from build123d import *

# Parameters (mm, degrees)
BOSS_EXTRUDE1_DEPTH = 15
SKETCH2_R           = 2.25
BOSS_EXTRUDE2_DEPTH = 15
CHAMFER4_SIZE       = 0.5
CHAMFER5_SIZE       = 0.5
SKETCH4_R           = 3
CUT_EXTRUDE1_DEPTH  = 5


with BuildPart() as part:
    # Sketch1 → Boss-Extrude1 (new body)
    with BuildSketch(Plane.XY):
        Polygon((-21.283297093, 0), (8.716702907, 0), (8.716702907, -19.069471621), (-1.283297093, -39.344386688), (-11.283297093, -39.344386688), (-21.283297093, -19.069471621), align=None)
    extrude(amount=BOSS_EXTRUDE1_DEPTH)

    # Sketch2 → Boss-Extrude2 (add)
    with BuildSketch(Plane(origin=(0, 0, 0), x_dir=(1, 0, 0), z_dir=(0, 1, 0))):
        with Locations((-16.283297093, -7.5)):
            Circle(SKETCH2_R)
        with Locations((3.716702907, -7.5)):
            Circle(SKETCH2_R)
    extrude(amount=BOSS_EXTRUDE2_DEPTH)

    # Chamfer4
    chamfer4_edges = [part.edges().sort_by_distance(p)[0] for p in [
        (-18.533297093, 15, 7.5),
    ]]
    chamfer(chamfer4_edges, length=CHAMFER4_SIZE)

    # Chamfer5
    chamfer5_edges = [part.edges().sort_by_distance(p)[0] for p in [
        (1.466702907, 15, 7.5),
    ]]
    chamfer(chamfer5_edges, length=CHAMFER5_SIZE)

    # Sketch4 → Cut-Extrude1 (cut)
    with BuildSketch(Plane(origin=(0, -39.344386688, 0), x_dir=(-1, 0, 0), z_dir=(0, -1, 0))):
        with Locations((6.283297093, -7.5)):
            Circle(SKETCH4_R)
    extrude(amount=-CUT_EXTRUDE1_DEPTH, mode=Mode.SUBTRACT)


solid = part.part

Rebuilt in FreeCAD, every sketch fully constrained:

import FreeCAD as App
import Part
import Sketcher
from FreeCAD import Vector
Q = App.Units.Quantity


def edges_at(feature, points):
    """Names of the edges that pass closest to the given points."""
    edges = feature.Shape.Edges
    near = lambda p: min(range(len(edges)), key=lambda i: edges[i].distToShape(Part.Vertex(*p))[0])
    return sorted({f"Edge{near(p) + 1}" for p in points})


def add_polygon(sketch, points):
    """Adds a closed chain of lines whose ends are joined by coincident constraints."""
    first, n = sketch.GeometryCount, len(points)
    for a, b in zip(points, points[1:] + points[:1]):
        sketch.addGeometry(Part.LineSegment(App.Vector(*a, 0), App.Vector(*b, 0)), False)
    for i in range(n):
        sketch.addConstraint(Sketcher.Constraint("Coincident", first + i, 2, first + (i + 1) % n, 1))

doc = App.newDocument("Part")
body = doc.addObject("PartDesign::Body", "Body")

# Sketch on XY plane
sketch1 = body.newObject("Sketcher::SketchObject", "Sketch")
sketch1.AttachmentSupport = (doc.getObject("XY_Plane"), [""])
sketch1.MapMode = "FlatFace"
add_polygon(sketch1, [(9, 0), (-21, 0), (-21, -19), (-11, -39), (-1, -39), (9, -19)])  # lines 0-5
sketch1.addConstraint(Sketcher.Constraint("Horizontal", 0))
sketch1.addConstraint(Sketcher.Constraint("Vertical", 1))
sketch1.addConstraint(Sketcher.Constraint("Horizontal", 3))
sketch1.addConstraint(Sketcher.Constraint("Vertical", 5))
sketch1.addConstraint(Sketcher.Constraint("PointOnObject", 0, 2, -1))
sketch1.addConstraint(Sketcher.Constraint("Horizontal", 1, 2, 4, 2))
sketch1.addConstraint(Sketcher.Constraint("Equal", 2, 4))
sketch1.addConstraint(Sketcher.Constraint("DistanceX", 0, 2, 0, 1, Q("30 mm")))
sketch1.addConstraint(Sketcher.Constraint("DistanceX", 3, 1, 3, 2, Q("10 mm")))
sketch1.addConstraint(Sketcher.Constraint("DistanceY", 1, 2, 1, 1, Q("19.069472 mm")))
sketch1.addConstraint(Sketcher.Constraint("Distance", 2, Q("22.606906 mm")))
sketch1.addConstraint(Sketcher.Constraint("DistanceX", 0, 2, -1, 1, Q("21.283297 mm")))
pad1 = body.newObject("PartDesign::Pad", "Pad")
pad1.Profile = sketch1
pad1.Length = 15

# Sketch on XZ plane
sketch2 = body.newObject("Sketcher::SketchObject", "Sketch001")
sketch2.AttachmentSupport = (doc.getObject("XZ_Plane"), [""])
sketch2.MapMode = "FlatFace"
sketch2.addGeometry(Part.Circle(Vector(-16.3, 7.5, 0), Vector(0, 0, 1), 2.2), False)
sketch2.addGeometry(Part.Circle(Vector(3.7, 7.5, 0), Vector(0, 0, 1), 2.2), False)
sketch2.addConstraint(Sketcher.Constraint("Equal", 0, 1))
sketch2.addConstraint(Sketcher.Constraint("Horizontal", 0, 3, 1, 3))
sketch2.addConstraint(Sketcher.Constraint("Diameter", 0, Q("4.5 mm")))
sketch2.addConstraint(Sketcher.Constraint("DistanceX", 0, 3, 1, 3, Q("20 mm")))
sketch2.addConstraint(Sketcher.Constraint("DistanceY", -1, 1, 0, 3, Q("7.5 mm")))
sketch2.addConstraint(Sketcher.Constraint("DistanceX", 0, 3, -1, 1, Q("16.283297 mm")))
pad2 = body.newObject("PartDesign::Pad", "Pad001")
pad2.Profile = sketch2
pad2.Length = 15
pad2.Reversed = True
doc.recompute()

chamfer = body.newObject("PartDesign::Chamfer", "Chamfer")
chamfer.Base = (pad2, edges_at(pad2, [(-18.533, 15, 7.5)]))
chamfer.Size = 0.5
doc.recompute()

chamfer2 = body.newObject("PartDesign::Chamfer", "Chamfer001")
chamfer2.Base = (chamfer, edges_at(chamfer, [(1.467, 15, 7.5)]))
chamfer2.Size = 0.5

# Sketch on XZ plane
sketch3 = body.newObject("Sketcher::SketchObject", "Sketch002")
sketch3.AttachmentSupport = (doc.getObject("XZ_Plane"), [""])
sketch3.MapMode = "FlatFace"
sketch3.AttachmentOffset = App.Placement(Vector(0, 0, 39.344387), App.Rotation())
sketch3.addGeometry(Part.Circle(Vector(-6.3, 7.5, 0), Vector(0, 0, 1), 3), False)
sketch3.addConstraint(Sketcher.Constraint("Diameter", 0, Q("6 mm")))
sketch3.addConstraint(Sketcher.Constraint("DistanceY", -1, 1, 0, 3, Q("7.5 mm")))
sketch3.addConstraint(Sketcher.Constraint("DistanceX", 0, 3, -1, 1, Q("6.283297 mm")))
pocket1 = body.newObject("PartDesign::Pocket", "Pocket")
pocket1.Profile = sketch3
pocket1.Length = 5

doc.recompute()
